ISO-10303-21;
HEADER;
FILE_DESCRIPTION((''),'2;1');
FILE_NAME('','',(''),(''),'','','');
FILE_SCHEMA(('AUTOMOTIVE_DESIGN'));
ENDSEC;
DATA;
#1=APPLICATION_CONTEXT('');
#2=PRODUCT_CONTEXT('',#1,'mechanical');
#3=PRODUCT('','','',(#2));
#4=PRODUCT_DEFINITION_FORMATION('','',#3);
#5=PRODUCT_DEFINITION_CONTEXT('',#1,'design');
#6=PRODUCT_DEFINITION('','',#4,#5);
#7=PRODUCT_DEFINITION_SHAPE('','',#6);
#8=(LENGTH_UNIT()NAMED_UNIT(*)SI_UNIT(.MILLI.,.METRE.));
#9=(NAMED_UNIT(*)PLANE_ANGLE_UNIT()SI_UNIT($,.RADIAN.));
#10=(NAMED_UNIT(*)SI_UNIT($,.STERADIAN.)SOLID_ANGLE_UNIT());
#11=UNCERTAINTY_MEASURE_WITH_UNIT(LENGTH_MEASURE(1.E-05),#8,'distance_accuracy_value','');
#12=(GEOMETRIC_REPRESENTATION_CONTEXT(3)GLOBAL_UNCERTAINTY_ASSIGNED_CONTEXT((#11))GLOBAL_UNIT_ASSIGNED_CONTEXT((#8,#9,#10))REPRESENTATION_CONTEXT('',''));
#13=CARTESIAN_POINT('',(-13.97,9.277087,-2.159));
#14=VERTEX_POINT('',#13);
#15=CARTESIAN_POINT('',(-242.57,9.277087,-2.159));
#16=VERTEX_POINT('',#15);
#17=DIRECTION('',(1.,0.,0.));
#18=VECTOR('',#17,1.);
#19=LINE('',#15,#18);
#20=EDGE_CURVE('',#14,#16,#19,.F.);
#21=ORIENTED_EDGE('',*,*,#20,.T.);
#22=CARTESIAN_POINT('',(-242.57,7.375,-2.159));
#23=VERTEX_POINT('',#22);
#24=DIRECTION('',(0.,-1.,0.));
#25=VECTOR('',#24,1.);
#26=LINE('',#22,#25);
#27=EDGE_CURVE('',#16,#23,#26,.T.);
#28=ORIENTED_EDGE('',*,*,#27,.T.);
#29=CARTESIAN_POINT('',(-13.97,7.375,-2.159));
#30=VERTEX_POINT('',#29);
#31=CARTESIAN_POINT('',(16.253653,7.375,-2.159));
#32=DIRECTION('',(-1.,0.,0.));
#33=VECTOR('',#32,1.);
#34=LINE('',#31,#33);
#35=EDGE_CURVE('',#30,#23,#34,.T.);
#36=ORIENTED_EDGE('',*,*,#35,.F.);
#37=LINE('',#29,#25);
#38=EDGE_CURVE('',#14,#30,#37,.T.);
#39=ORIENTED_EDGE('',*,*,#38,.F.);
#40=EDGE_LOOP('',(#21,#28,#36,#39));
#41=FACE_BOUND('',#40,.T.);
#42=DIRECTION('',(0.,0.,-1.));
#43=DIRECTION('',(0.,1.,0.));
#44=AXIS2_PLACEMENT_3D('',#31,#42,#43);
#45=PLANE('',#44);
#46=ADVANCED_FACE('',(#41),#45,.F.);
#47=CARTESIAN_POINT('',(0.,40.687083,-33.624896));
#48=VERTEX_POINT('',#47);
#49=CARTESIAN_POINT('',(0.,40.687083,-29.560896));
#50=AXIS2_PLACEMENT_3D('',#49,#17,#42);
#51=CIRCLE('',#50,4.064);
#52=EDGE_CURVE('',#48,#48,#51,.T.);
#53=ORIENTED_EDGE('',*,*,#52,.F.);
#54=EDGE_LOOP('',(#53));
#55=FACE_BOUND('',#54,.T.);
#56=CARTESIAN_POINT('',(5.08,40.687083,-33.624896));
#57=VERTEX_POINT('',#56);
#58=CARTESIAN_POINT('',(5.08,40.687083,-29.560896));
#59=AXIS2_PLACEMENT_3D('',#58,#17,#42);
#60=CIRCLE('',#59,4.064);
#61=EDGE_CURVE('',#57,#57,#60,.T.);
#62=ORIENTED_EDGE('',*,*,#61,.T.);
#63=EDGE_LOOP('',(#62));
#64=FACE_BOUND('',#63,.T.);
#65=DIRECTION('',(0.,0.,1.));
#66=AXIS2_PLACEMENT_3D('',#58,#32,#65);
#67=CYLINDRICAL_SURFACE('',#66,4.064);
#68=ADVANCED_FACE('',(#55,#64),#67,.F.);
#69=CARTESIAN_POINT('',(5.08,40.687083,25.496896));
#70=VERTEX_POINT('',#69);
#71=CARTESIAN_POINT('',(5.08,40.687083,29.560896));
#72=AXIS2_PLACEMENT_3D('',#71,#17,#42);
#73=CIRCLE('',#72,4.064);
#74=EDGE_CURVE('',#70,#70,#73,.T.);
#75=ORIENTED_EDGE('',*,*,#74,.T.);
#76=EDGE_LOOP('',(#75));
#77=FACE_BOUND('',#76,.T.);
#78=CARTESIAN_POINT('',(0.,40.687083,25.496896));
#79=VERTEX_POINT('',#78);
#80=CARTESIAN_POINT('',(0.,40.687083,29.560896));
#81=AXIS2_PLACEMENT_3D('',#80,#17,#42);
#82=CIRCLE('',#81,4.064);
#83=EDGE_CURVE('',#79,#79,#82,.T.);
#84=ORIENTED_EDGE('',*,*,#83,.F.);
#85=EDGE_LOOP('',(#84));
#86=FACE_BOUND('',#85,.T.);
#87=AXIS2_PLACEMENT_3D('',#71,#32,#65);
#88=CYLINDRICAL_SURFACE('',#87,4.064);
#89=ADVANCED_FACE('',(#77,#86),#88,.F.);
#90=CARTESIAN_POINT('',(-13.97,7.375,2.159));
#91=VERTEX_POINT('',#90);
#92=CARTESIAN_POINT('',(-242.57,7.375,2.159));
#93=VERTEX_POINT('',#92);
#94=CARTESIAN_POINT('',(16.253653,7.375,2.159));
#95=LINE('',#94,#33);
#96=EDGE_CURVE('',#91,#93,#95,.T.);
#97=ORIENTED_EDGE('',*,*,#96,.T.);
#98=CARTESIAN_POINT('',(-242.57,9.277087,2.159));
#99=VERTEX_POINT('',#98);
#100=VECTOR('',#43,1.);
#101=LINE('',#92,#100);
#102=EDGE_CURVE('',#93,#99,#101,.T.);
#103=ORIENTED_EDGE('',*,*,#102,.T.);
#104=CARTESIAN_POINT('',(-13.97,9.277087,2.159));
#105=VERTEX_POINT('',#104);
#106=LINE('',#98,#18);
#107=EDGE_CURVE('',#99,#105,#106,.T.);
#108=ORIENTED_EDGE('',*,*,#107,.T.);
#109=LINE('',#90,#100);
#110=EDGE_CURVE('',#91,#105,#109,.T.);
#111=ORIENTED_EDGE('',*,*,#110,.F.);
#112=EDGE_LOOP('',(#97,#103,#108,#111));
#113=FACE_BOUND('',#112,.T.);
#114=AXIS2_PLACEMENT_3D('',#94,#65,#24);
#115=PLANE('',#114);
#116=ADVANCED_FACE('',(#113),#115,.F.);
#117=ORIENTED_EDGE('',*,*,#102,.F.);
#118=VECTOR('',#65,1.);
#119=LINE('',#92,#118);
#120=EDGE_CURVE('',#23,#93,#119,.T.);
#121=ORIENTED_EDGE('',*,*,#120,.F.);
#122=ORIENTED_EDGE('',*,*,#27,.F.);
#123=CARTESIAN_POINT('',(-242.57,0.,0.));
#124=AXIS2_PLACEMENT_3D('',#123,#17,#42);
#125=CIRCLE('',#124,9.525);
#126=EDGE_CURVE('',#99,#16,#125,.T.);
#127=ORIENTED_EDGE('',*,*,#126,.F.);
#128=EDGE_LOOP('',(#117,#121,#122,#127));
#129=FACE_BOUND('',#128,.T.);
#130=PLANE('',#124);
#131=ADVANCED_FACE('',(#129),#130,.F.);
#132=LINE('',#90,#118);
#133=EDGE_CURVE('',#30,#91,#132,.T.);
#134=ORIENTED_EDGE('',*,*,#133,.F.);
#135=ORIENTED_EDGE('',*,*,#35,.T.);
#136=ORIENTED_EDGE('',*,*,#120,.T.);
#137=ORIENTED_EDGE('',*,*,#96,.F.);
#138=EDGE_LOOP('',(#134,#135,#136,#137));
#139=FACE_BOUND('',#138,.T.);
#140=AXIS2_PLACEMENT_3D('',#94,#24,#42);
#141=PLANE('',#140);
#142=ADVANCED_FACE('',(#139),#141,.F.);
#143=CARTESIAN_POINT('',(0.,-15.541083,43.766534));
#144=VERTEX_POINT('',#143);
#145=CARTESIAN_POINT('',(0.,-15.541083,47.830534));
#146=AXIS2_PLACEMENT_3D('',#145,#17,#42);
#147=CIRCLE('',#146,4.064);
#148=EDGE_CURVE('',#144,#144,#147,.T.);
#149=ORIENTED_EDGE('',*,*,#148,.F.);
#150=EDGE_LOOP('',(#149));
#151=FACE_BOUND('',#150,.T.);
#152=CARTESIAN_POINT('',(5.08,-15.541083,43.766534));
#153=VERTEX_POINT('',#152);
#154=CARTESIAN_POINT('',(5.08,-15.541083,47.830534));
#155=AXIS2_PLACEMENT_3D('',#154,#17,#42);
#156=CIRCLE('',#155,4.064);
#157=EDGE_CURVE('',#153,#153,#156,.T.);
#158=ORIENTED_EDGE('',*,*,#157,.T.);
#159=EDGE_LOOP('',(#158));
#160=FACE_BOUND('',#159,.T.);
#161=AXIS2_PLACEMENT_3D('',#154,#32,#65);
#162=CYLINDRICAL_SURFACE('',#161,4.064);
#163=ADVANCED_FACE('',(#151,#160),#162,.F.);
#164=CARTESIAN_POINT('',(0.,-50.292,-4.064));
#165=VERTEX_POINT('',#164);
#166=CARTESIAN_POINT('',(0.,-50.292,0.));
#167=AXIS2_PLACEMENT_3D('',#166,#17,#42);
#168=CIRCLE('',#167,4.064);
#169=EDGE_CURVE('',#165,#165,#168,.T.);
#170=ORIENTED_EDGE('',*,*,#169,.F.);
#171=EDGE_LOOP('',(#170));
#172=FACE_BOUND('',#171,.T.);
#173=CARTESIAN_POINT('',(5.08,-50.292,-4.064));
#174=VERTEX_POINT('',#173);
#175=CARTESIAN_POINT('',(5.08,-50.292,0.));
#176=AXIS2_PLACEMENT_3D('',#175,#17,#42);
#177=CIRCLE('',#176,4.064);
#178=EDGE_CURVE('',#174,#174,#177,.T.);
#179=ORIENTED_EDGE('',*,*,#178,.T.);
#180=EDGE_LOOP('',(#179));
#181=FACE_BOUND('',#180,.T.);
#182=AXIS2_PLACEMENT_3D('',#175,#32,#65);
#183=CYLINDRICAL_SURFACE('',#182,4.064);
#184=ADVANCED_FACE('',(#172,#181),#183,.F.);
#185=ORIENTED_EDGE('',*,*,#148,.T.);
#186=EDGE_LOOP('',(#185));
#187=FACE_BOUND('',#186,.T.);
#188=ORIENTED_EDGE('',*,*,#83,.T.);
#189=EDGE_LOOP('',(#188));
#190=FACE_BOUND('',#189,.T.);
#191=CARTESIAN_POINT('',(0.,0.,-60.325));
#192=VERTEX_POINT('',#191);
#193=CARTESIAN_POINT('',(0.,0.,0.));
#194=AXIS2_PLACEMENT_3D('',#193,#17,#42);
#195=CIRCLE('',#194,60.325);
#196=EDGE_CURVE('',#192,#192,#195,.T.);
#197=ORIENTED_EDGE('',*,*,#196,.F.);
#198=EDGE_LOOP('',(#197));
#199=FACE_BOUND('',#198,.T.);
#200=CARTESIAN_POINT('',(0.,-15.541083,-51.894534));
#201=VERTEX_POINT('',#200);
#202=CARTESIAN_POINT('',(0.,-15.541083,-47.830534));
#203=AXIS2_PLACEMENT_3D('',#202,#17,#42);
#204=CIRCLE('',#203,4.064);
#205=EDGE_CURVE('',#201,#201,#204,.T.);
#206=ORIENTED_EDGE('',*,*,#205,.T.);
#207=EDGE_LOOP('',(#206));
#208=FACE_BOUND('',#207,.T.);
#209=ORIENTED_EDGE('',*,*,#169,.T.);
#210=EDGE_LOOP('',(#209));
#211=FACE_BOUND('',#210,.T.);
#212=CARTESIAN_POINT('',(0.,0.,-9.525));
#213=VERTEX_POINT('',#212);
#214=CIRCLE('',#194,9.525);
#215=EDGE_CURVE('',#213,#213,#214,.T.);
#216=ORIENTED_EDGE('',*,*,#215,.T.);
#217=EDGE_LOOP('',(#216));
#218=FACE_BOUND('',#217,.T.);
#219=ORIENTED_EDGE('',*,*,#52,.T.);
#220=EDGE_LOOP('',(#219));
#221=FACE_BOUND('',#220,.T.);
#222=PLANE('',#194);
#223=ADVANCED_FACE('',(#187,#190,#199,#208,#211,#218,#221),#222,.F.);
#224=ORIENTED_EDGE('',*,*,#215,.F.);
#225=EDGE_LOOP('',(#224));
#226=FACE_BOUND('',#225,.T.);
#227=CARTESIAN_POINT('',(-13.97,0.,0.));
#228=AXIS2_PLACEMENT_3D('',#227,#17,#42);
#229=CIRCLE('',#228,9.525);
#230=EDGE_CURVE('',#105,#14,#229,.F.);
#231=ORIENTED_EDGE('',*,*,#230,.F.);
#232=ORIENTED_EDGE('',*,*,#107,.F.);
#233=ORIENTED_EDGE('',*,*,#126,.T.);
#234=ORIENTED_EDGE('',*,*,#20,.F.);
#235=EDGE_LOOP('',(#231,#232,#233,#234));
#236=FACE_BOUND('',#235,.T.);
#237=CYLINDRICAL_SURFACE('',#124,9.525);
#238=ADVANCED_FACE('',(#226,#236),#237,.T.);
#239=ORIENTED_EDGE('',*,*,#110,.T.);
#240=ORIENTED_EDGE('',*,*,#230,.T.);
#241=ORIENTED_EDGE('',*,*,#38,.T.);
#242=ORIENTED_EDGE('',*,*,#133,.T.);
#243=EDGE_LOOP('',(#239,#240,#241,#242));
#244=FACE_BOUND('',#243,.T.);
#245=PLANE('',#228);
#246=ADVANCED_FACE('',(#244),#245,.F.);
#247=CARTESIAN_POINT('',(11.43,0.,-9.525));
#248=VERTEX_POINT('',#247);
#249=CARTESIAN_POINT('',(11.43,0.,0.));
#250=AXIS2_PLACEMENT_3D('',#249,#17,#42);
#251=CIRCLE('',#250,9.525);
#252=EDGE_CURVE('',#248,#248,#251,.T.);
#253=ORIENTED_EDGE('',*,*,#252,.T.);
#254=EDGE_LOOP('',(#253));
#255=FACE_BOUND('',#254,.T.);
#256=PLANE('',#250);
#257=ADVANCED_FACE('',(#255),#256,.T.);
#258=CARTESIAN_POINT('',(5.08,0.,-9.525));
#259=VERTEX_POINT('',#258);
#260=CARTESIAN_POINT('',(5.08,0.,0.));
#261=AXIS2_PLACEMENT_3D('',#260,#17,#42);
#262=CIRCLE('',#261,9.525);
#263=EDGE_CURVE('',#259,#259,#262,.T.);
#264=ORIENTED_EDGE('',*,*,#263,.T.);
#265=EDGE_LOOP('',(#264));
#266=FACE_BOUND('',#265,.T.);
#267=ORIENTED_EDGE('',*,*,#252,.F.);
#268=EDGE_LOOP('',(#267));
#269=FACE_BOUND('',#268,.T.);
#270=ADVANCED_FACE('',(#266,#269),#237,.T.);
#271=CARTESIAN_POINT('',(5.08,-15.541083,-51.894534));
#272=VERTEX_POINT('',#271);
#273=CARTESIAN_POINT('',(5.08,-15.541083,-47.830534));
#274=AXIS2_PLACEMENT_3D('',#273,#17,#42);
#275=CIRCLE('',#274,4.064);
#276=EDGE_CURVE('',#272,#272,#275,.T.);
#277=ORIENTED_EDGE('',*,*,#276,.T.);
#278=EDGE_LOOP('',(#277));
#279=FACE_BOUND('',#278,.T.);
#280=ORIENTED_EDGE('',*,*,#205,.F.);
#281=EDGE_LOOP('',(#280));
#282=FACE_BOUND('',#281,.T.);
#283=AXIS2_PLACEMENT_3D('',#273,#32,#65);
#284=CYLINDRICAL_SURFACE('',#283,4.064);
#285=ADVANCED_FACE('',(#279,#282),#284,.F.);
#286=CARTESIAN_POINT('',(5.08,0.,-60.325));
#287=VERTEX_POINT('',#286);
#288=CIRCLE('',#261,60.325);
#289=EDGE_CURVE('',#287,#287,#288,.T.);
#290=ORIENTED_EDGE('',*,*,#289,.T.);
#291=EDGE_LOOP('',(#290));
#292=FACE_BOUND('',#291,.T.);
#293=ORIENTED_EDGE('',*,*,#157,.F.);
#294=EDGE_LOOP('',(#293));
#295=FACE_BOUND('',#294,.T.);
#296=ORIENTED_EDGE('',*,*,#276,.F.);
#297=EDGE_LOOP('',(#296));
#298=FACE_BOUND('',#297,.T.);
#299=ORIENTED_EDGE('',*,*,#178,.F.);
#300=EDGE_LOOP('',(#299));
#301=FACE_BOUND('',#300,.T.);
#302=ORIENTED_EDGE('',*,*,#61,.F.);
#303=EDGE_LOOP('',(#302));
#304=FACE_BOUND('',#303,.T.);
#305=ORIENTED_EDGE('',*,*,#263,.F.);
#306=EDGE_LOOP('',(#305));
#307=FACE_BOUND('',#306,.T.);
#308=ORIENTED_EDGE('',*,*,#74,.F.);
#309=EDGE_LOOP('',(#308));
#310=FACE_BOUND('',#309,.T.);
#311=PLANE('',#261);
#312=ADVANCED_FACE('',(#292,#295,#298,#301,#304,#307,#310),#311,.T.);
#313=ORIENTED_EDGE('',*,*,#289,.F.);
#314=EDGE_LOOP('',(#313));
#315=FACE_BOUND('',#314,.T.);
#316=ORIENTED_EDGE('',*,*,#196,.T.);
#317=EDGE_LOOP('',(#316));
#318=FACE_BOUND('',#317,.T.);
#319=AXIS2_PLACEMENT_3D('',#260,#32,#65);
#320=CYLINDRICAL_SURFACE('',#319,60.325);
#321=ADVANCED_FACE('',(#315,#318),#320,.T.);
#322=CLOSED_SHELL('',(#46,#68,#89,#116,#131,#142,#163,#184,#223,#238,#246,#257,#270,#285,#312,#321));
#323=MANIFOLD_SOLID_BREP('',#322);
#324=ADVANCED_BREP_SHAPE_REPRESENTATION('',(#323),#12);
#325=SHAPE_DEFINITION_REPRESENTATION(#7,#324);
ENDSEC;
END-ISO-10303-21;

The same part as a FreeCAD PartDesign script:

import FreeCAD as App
import Part
import Sketcher
Q = App.Units.Quantity

doc = App.newDocument("Part")
params = doc.addObject("Spreadsheet::Sheet", "Params")
for row, (alias, value) in enumerate([
    ("sketch1_diameter", "4.75 in"),
    ("sketch1_diameter2", "0.32 in"),
    ("pad1_length", "0.2 in"),
    ("sketch2_diameter", "0.75 in"),
    ("pad2_length", "0.25 in"),
    ("pad2_length2", "9.75 in"),
    ("sketch3_height", "0.17 in"),
    ("pocket1_length", "9 in"),
], start=1):
    params.set(f"A{row}", alias)
    params.set(f"B{row}", "=" + value)
    params.setAlias(f"B{row}", alias)

body = doc.addObject("PartDesign::Body", "Body")

# Sketch on YZ plane
sketch1 = body.newObject("Sketcher::SketchObject", "Sketch")
sketch1.AttachmentSupport = (doc.getObject("YZ_Plane"), [""])
sketch1.MapMode = "FlatFace"
sketch1.addGeometry([
    Part.Circle(App.Vector(0, 0, 0), App.Vector(0, 0, 1), 60.3),  # 0
    Part.Circle(App.Vector(-15.5, 47.8, 0), App.Vector(0, 0, 1), 4.1),  # 1
    Part.Circle(App.Vector(-50.3, 0, 0), App.Vector(0, 0, 1), 4.1),  # 2
    Part.Circle(App.Vector(-15.5, -47.8, 0), App.Vector(0, 0, 1), 4.1),  # 3
    Part.Circle(App.Vector(40.7, 29.6, 0), App.Vector(0, 0, 1), 4.1),  # 4
    Part.Circle(App.Vector(40.7, -29.6, 0), App.Vector(0, 0, 1), 4.1),  # 5
], False)
sketch1.addConstraint([
    Sketcher.Constraint("Coincident", 0, 3, -1, 1),
    Sketcher.Constraint("Equal", 1, 2),
    Sketcher.Constraint("Equal", 2, 3),
    Sketcher.Constraint("Equal", 3, 4),
    Sketcher.Constraint("Equal", 4, 5),
    Sketcher.Constraint("Symmetric", 1, 3, 3, 3, -1),
    Sketcher.Constraint("Symmetric", 4, 3, 5, 3, -1),
    Sketcher.Constraint("PointOnObject", 2, 3, -1),
    Sketcher.Constraint("Diameter", 0, Q("4.75 in")),
    Sketcher.Constraint("Diameter", 1, Q("0.32 in")),
    Sketcher.Constraint("DistanceX", 2, 3, -1, 1, Q("1.98 in")),
    Sketcher.Constraint("DistanceY", 3, 3, 1, 3, Q("95.661069 mm")),
    Sketcher.Constraint("DistanceY", 4, 3, 1, 3, Q("18.269638 mm")),
    Sketcher.Constraint("DistanceX", 1, 3, -1, 1, Q("15.541083 mm")),
    Sketcher.Constraint("DistanceX", -1, 1, 4, 3, Q("40.687083 mm")),
])
sketch1.setExpression("Constraints[8]", "Params.sketch1_diameter")
sketch1.setExpression("Constraints[9]", "Params.sketch1_diameter2")
pad1 = body.newObject("PartDesign::Pad", "Pad")
pad1.Profile = sketch1
pad1.setExpression("Length", "Params.pad1_length")

# Sketch on YZ plane
sketch2 = body.newObject("Sketcher::SketchObject", "Sketch001")
sketch2.AttachmentSupport = (doc.getObject("YZ_Plane"), [""])
sketch2.MapMode = "FlatFace"
sketch2.AttachmentOffset = App.Placement(App.Vector(0, 0, 0.2 * 25.4), App.Rotation())
sketch2.addGeometry(Part.Circle(App.Vector(0, 0, 0), App.Vector(0, 0, 1), 10), False)
sketch2.addConstraint([
    Sketcher.Constraint("Coincident", 0, 3, -1, 1),
    Sketcher.Constraint("Diameter", 0, Q("0.75 in")),
])
sketch2.setExpression("Constraints[1]", "Params.sketch2_diameter")
pad2 = body.newObject("PartDesign::Pad", "Pad001")
pad2.Profile = sketch2
pad2.Type = "TwoLengths"
pad2.setExpression("Length", "Params.pad2_length")
pad2.setExpression("Length2", "Params.pad2_length2")

# Sketch on YZ plane
sketch3 = body.newObject("Sketcher::SketchObject", "Sketch002")
sketch3.AttachmentSupport = (doc.getObject("YZ_Plane"), [""])
sketch3.MapMode = "FlatFace"
sketch3.AttachmentOffset = App.Placement(App.Vector(0, 0, -9.55 * 25.4), App.Rotation())
sketch3.addGeometry([
    Part.LineSegment(App.Vector(9.5, -2.2, 0), App.Vector(7.4, -2.2, 0)),
    Part.LineSegment(App.Vector(7.4, -2.2, 0), App.Vector(7.4, 2.2, 0)),
    Part.LineSegment(App.Vector(7.4, 2.2, 0), App.Vector(9.5, 2.2, 0)),
    Part.LineSegment(App.Vector(9.5, 2.2, 0), App.Vector(9.5, -2.2, 0)),
], False)
sketch3.addConstraint([
    Sketcher.Constraint("Coincident", 0, 2, 1, 1),
    Sketcher.Constraint("Coincident", 1, 2, 2, 1),
    Sketcher.Constraint("Coincident", 2, 2, 3, 1),
    Sketcher.Constraint("Coincident", 3, 2, 0, 1),
    Sketcher.Constraint("Horizontal", 0),
    Sketcher.Constraint("Vertical", 1),
    Sketcher.Constraint("Horizontal", 2),
    Sketcher.Constraint("Vertical", 3),
    Sketcher.Constraint("DistanceY", 1, 1, 1, 2, Q("0.17 in")),
    Sketcher.Constraint("DistanceY", 0, 2, -1, 1, Q("0.085 in")),
    Sketcher.Constraint("DistanceX", -1, 1, 2, 2, Q("0.375 in")),
    Sketcher.Constraint("DistanceX", 0, 2, 0, 1, Q("2.15 mm")),
])
sketch3.setExpression("Constraints[8]", "Params.sketch3_height")
pocket1 = body.newObject("PartDesign::Pocket", "Pocket")
pocket1.Profile = sketch3
pocket1.setExpression("Length", "Params.pocket1_length")
pocket1.Reversed = True

doc.recompute()
